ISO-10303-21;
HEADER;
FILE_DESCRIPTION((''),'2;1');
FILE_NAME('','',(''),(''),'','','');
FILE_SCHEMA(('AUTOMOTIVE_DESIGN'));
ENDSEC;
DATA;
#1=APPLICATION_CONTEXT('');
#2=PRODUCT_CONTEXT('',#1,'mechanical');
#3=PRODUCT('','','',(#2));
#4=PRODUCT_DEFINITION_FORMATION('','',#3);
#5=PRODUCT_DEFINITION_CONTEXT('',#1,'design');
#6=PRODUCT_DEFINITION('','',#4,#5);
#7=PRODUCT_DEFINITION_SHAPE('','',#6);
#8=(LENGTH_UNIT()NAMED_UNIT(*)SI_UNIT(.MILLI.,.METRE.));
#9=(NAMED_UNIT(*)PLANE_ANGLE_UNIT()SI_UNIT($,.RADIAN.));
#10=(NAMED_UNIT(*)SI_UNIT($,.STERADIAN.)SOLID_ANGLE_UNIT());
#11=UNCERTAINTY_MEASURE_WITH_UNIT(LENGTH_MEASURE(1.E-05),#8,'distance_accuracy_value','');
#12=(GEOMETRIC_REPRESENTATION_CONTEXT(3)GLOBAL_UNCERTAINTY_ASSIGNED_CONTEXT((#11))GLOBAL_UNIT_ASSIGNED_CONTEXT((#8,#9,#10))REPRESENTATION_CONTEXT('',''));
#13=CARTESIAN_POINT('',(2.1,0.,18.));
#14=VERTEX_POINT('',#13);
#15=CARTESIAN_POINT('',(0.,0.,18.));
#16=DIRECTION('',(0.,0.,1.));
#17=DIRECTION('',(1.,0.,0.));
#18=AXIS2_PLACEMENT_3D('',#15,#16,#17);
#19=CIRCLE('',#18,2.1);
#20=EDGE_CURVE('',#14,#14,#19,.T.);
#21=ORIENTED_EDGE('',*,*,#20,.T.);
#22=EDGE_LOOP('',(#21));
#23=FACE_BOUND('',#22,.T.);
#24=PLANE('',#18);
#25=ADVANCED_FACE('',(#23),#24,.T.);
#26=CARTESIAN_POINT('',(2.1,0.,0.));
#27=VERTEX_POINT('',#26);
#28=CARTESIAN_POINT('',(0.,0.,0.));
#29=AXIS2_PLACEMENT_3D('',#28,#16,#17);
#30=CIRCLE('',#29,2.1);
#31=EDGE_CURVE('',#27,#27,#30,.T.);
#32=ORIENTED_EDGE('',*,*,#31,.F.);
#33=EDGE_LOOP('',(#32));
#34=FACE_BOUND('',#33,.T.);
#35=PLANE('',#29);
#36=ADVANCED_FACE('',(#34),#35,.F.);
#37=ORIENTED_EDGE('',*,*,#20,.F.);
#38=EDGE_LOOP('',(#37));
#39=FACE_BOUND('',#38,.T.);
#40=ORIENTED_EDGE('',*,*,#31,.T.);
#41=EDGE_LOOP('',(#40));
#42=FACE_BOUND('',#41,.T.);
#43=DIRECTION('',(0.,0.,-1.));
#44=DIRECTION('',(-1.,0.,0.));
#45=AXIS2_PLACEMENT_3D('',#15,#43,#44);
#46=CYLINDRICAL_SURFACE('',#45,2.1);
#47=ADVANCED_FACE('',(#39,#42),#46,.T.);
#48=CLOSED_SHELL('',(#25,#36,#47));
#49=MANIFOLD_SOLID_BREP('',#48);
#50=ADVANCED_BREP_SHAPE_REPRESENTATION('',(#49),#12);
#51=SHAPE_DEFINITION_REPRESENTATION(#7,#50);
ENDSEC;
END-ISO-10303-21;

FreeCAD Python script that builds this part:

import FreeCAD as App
import Part
import Sketcher

V = App.Vector

doc = App.newDocument("Part")
body = doc.addObject("PartDesign::Body", "Body")

# Sketch on XY plane
sketch1 = doc.addObject("Sketcher::SketchObject", "Sketch")
body.addObject(sketch1)
sketch1.AttachmentSupport = (doc.XY_Plane, [""])
sketch1.MapMode = "FlatFace"
sketch1.addGeometry(Part.Circle(V(0, 0, 0), V(0, 0, 1), 2.1), False)
sketch1.addConstraint([
    Sketcher.Constraint("Coincident", 0, 3, -1, 1),
    Sketcher.Constraint("Diameter", 0, 4.2),
])
pad1 = doc.addObject("PartDesign::Pad", "Pad")
body.addObject(pad1)
pad1.Profile = sketch1
pad1.Length = 18

doc.recompute()
